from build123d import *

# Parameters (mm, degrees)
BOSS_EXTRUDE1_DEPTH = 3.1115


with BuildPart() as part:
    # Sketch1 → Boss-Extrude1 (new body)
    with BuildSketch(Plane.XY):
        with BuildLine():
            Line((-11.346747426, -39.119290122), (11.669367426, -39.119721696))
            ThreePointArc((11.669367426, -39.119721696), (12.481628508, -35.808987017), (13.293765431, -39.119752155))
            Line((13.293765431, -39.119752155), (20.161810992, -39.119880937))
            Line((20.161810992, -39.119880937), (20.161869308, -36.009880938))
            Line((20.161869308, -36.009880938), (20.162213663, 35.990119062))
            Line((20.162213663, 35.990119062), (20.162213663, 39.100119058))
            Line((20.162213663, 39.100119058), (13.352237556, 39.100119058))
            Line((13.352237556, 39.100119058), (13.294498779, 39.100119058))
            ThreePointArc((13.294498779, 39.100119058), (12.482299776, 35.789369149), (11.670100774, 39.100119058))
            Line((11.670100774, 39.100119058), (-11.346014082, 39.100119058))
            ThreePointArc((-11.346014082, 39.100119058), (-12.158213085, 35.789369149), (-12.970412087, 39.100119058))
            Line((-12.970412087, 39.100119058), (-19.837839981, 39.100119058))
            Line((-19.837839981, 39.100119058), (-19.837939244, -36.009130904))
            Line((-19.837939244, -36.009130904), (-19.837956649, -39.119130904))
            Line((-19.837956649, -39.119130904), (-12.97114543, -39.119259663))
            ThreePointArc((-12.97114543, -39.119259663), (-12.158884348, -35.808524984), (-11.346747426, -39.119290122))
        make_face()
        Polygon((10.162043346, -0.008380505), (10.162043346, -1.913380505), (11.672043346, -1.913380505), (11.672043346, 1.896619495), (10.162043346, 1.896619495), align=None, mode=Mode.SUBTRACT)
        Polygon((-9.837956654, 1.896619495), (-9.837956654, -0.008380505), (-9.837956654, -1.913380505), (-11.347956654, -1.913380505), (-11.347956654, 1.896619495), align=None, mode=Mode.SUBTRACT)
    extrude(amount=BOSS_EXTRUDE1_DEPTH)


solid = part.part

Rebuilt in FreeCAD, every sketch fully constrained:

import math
import FreeCAD as App
import Part
import Sketcher

V = App.Vector

doc = App.newDocument("Part")
body = doc.addObject("PartDesign::Body", "Body")

# Sketch on XY plane
sketch1 = body.newObject("Sketcher::SketchObject", "Sketch")
sketch1.AttachmentSupport = (doc.getObject("XY_Plane"), [""])
sketch1.MapMode = "FlatFace"
sketch1.addGeometry(Part.LineSegment(V(-11.3, -39.1, 0), V(11.7, -39.1, 0)), False)
sketch1.addGeometry(Part.ArcOfCircle(Part.Circle(V(12.5, -37.6, 0), V(0, 0, 1), 1.8), math.radians(-62), math.radians(242)), False)
sketch1.addGeometry(Part.LineSegment(V(13.3, -39.1, 0), V(20.2, -39.1, 0)), False)
sketch1.addGeometry(Part.LineSegment(V(20.2, -39.1, 0), V(20.2, -36, 0)), False)
sketch1.addGeometry(Part.LineSegment(V(20.2, -36, 0), V(20.2, 36, 0)), False)
sketch1.addGeometry(Part.LineSegment(V(20.2, 36, 0), V(20.2, 39.1, 0)), False)
sketch1.addGeometry(Part.LineSegment(V(20.2, 39.1, 0), V(13.3, 39.1, 0)), False)
sketch1.addGeometry(Part.ArcOfCircle(Part.Circle(V(12.5, 37.5, 0), V(0, 0, 1), 1.8), math.radians(118), math.radians(422)), False)
sketch1.addGeometry(Part.LineSegment(V(11.7, 39.1, 0), V(-11.3, 39.1, 0)), False)
sketch1.addGeometry(Part.ArcOfCircle(Part.Circle(V(-12.2, 37.5, 0), V(0, 0, 1), 1.8), math.radians(118), math.radians(422)), False)
sketch1.addGeometry(Part.LineSegment(V(-13, 39.1, 0), V(-19.8, 39.1, 0)), False)
sketch1.addGeometry(Part.LineSegment(V(-19.8, 39.1, 0), V(-19.8, -36, 0)), False)
sketch1.addGeometry(Part.LineSegment(V(-19.8, -36, 0), V(-19.8, -39.1, 0)), False)
sketch1.addGeometry(Part.LineSegment(V(-19.8, -39.1, 0), V(-13, -39.1, 0)), False)
sketch1.addGeometry(Part.ArcOfCircle(Part.Circle(V(-12.2, -37.6, 0), V(0, 0, 1), 1.8), math.radians(-62), math.radians(242)), False)
sketch1.addGeometry(Part.LineSegment(V(-11.3, 1.9, 0), V(-9.8, 1.9, 0)), False)
sketch1.addGeometry(Part.LineSegment(V(-9.8, 1.9, 0), V(-9.8, -1.9, 0)), False)
sketch1.addGeometry(Part.LineSegment(V(-9.8, -1.9, 0), V(-11.3, -1.9, 0)), False)
sketch1.addGeometry(Part.LineSegment(V(-11.3, -1.9, 0), V(-11.3, 1.9, 0)), False)
sketch1.addGeometry(Part.LineSegment(V(10.2, -1.9, 0), V(10.2, 1.9, 0)), False)
sketch1.addGeometry(Part.LineSegment(V(10.2, 1.9, 0), V(11.7, 1.9, 0)), False)
sketch1.addGeometry(Part.LineSegment(V(11.7, 1.9, 0), V(11.7, -1.9, 0)), False)
sketch1.addGeometry(Part.LineSegment(V(11.7, -1.9, 0), V(10.2, -1.9, 0)), False)
sketch1.addConstraint(Sketcher.Constraint("Coincident", 0, 2, 1, 2))
sketch1.addConstraint(Sketcher.Constraint("Coincident", 1, 1, 2, 1))
sketch1.addConstraint(Sketcher.Constraint("Coincident", 2, 2, 3, 1))
sketch1.addConstraint(Sketcher.Constraint("Coincident", 3, 2, 4, 1))
sketch1.addConstraint(Sketcher.Constraint("Coincident", 4, 2, 5, 1))
sketch1.addConstraint(Sketcher.Constraint("Coincident", 5, 2, 6, 1))
sketch1.addConstraint(Sketcher.Constraint("Coincident", 6, 2, 7, 2))
sketch1.addConstraint(Sketcher.Constraint("Coincident", 7, 1, 8, 1))
sketch1.addConstraint(Sketcher.Constraint("Coincident", 8, 2, 9, 2))
sketch1.addConstraint(Sketcher.Constraint("Coincident", 9, 1, 10, 1))
sketch1.addConstraint(Sketcher.Constraint("Coincident", 10, 2, 11, 1))
sketch1.addConstraint(Sketcher.Constraint("Coincident", 11, 2, 12, 1))
sketch1.addConstraint(Sketcher.Constraint("Coincident", 12, 2, 13, 1))
sketch1.addConstraint(Sketcher.Constraint("Coincident", 13, 2, 14, 2))
sketch1.addConstraint(Sketcher.Constraint("Coincident", 14, 1, 0, 1))
sketch1.addConstraint(Sketcher.Constraint("Coincident", 15, 2, 16, 1))
sketch1.addConstraint(Sketcher.Constraint("Coincident", 16, 2, 17, 1))
sketch1.addConstraint(Sketcher.Constraint("Coincident", 17, 2, 18, 1))
sketch1.addConstraint(Sketcher.Constraint("Coincident", 18, 2, 15, 1))
sketch1.addConstraint(Sketcher.Constraint("Coincident", 19, 2, 20, 1))
sketch1.addConstraint(Sketcher.Constraint("Coincident", 20, 2, 21, 1))
sketch1.addConstraint(Sketcher.Constraint("Coincident", 21, 2, 22, 1))
sketch1.addConstraint(Sketcher.Constraint("Coincident", 22, 2, 19, 1))
sketch1.addConstraint(Sketcher.Constraint("Vertical", 5))
sketch1.addConstraint(Sketcher.Constraint("Horizontal", 6))
sketch1.addConstraint(Sketcher.Constraint("Horizontal", 8))
sketch1.addConstraint(Sketcher.Constraint("Horizontal", 10))
sketch1.addConstraint(Sketcher.Constraint("Horizontal", 15))
sketch1.addConstraint(Sketcher.Constraint("Vertical", 16))
sketch1.addConstraint(Sketcher.Constraint("Horizontal", 17))
sketch1.addConstraint(Sketcher.Constraint("Vertical", 18))
sketch1.addConstraint(Sketcher.Constraint("Vertical", 19))
sketch1.addConstraint(Sketcher.Constraint("Horizontal", 20))
sketch1.addConstraint(Sketcher.Constraint("Vertical", 21))
sketch1.addConstraint(Sketcher.Constraint("Horizontal", 22))
sketch1.addConstraint(Sketcher.Constraint("Equal", 1, 7))
sketch1.addConstraint(Sketcher.Constraint("Equal", 7, 9))
sketch1.addConstraint(Sketcher.Constraint("Equal", 9, 14))
sketch1.addConstraint(Sketcher.Constraint("Parallel", 0, 2))
sketch1.addConstraint(Sketcher.Constraint("Perpendicular", 2, 3))
sketch1.addConstraint(Sketcher.Constraint("Parallel", 4, 12))
sketch1.addConstraint(Sketcher.Constraint("Perpendicular", 3, 13))
sketch1.addConstraint(Sketcher.Constraint("Horizontal", 7, 3, 9, 3))
sketch1.addConstraint(Sketcher.Constraint("Horizontal", 6, 2, 7, 1))
sketch1.addConstraint(Sketcher.Constraint("Horizontal", 8, 2, 9, 1))
sketch1.addConstraint(Sketcher.Constraint("Horizontal", 18, 2, 19, 2))
sketch1.addConstraint(Sketcher.Constraint("Horizontal", 17, 2, 21, 2))
sketch1.addConstraint(Sketcher.Constraint("Equal", 17, 20))
sketch1.addConstraint(Sketcher.Constraint("Equal", 3, 12))
sketch1.addConstraint(Sketcher.Constraint("Distance", 4, 72.0))
sketch1.addConstraint(Sketcher.Constraint("Radius", 1, 1.755))
sketch1.addConstraint(Sketcher.Constraint("DistanceX", 15, 2, 19, 2, 20.0))
sketch1.addConstraint(Sketcher.Constraint("DistanceX", 15, 1, 15, 2, 1.51))
sketch1.addConstraint(Sketcher.Constraint("DistanceY", 5, 1, 5, 2, 3.11))
sketch1.addConstraint(Sketcher.Constraint("DistanceY", 16, 2, 16, 1, 3.81))
sketch1.addConstraint(Sketcher.Constraint("Distance", 3, 3.11))
sketch1.addConstraint(Sketcher.Constraint("DistanceX", -1, 1, 7, 3, 12.4823))
sketch1.addConstraint(Sketcher.Constraint("DistanceX", -1, 1, 6, 2, 13.294499))
sketch1.addConstraint(Sketcher.Constraint("DistanceX", 0, 2, 1, 1, 1.624398))
sketch1.addConstraint(Sketcher.Constraint("DistanceX", 0, 2, 3, 2, 8.492502))
sketch1.addConstraint(Sketcher.Constraint("DistanceX", 13, 2, 14, 1, 1.624398))
sketch1.addConstraint(Sketcher.Constraint("DistanceY", 15, 2, 8, 2, 37.2035))
sketch1.addConstraint(Sketcher.Constraint("Distance", 11, 75.10925))
sketch1.addConstraint(Sketcher.Constraint("Distance", 13, 6.866811))
sketch1.addConstraint(Sketcher.Constraint("DistanceX", 6, 2, 6, 1, 6.867715))
sketch1.addConstraint(Sketcher.Constraint("DistanceX", 8, 2, 8, 1, 23.016115))
sketch1.addConstraint(Sketcher.Constraint("DistanceX", 10, 2, 10, 1, 6.867428))
sketch1.addConstraint(Sketcher.Constraint("DistanceY", -1, 1, 7, 3, 37.544369))
sketch1.addConstraint(Sketcher.Constraint("DistanceY", 0, 2, -1, 1, 39.119722))
sketch1.addConstraint(Sketcher.Constraint("DistanceX", -1, 1, 2, 2, 20.161811))
sketch1.addConstraint(Sketcher.Constraint("DistanceX", -1, 1, 3, 2, 20.161869))
sketch1.addConstraint(Sketcher.Constraint("DistanceX", 11, 2, -1, 1, 19.837939))
sketch1.addConstraint(Sketcher.Constraint("DistanceX", 14, 3, 16, 2, 2.320961))
pad1 = body.newObject("PartDesign::Pad", "Pad")
pad1.Profile = sketch1
pad1.Length = 3.1115

doc.recompute()
